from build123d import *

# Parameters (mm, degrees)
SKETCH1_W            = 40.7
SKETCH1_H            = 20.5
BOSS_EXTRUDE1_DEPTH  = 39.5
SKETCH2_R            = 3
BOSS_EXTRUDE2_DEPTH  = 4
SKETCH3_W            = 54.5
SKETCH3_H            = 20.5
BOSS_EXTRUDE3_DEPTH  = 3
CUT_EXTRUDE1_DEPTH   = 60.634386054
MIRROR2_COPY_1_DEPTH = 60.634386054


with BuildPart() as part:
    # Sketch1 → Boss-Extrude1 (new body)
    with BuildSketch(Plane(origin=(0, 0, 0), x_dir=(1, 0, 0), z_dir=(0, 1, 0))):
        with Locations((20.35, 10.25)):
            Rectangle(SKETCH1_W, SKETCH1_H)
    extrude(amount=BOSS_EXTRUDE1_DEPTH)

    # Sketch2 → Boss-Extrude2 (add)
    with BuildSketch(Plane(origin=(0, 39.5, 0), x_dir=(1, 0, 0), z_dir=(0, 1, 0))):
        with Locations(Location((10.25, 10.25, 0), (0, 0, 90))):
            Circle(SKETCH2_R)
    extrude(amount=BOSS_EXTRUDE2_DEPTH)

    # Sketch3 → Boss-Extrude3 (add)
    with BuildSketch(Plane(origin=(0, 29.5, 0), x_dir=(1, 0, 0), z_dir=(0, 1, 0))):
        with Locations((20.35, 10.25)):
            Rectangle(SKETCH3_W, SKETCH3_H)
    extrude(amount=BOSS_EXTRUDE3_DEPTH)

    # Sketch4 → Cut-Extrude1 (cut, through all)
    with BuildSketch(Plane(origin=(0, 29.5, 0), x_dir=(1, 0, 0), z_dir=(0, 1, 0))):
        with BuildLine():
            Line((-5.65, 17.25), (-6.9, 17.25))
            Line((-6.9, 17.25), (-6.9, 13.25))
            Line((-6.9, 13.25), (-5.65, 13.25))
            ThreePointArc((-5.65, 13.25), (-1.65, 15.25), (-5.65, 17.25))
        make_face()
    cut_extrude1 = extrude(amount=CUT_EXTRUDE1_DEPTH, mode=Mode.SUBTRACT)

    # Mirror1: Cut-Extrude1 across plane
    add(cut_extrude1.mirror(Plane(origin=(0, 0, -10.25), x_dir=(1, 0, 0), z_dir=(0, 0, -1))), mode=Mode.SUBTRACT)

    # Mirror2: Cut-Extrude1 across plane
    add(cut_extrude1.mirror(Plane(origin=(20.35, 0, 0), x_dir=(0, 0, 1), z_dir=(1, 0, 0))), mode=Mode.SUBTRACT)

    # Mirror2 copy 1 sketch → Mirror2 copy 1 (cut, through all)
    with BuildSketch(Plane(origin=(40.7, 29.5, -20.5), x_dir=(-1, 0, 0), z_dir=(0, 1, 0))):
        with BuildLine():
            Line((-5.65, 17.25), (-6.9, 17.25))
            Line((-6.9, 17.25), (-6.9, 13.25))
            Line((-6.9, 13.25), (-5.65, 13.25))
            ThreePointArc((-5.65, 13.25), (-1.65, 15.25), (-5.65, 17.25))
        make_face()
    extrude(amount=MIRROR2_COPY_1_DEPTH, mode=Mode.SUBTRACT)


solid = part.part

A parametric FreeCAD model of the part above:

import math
import FreeCAD as App
import Part
import Sketcher
from FreeCAD import Vector
Q = App.Units.Quantity


def add_polygon(sketch, points):
    """Adds a closed chain of lines whose ends are joined by coincident constraints."""
    first, n = sketch.GeometryCount, len(points)
    for a, b in zip(points, points[1:] + points[:1]):
        sketch.addGeometry(Part.LineSegment(App.Vector(*a, 0), App.Vector(*b, 0)), False)
    for i in range(n):
        sketch.addConstraint(Sketcher.Constraint("Coincident", first + i, 2, first + (i + 1) % n, 1))

doc = App.newDocument("Part")
params = doc.addObject("Spreadsheet::Sheet", "Params")
for row, (alias, value) in enumerate([
    ("sketch1_width", "40.7 mm"),
    ("sketch1_height", "20.5 mm"),
    ("pad1_length", "39.5 mm"),
    ("sketch2_diameter", "6 mm"),
    ("pad2_length", "4 mm"),
    ("sketch3_width", "54.5 mm"),
    ("sketch3_height", "20.5 mm"),
    ("pad3_length", "3 mm"),
    ("sketch4_radius", "2.5 mm"),
    ("sketch4_height", "4 mm"),
    ("sketch4_width", "1.25 mm"),
    ("sketch5_radius", "2.5 mm"),
    ("sketch5_height", "4 mm"),
    ("sketch5_width", "1.25 mm"),
], start=1):
    params.set(f"A{row}", alias)
    params.set(f"B{row}", "=" + value)
    params.setAlias(f"B{row}", alias)

body = doc.addObject("PartDesign::Body", "Body")

# Sketch on XZ plane
sketch1 = body.newObject("Sketcher::SketchObject", "Sketch")
sketch1.AttachmentSupport = (doc.getObject("XZ_Plane"), [""])
sketch1.MapMode = "FlatFace"
add_polygon(sketch1, [(0, -20), (0, 0), (41, 0), (41, -20)])  # lines 0-3
sketch1.addConstraint([
    Sketcher.Constraint("Vertical", 0),
    Sketcher.Constraint("Horizontal", 1),
    Sketcher.Constraint("Vertical", 2),
    Sketcher.Constraint("Horizontal", 3),
    Sketcher.Constraint("Coincident", 0, 2, -1, 1),
    Sketcher.Constraint("DistanceX", 1, 1, 1, 2, Q("40.7 mm")),
    Sketcher.Constraint("DistanceY", 0, 1, 0, 2, Q("20.5 mm")),
])
sketch1.setExpression("Constraints[9]", "Params.sketch1_width")
sketch1.setExpression("Constraints[10]", "Params.sketch1_height")
pad1 = body.newObject("PartDesign::Pad", "Pad")
pad1.Profile = sketch1
pad1.setExpression("Length", "Params.pad1_length")
pad1.Reversed = True

# Sketch on XZ plane
sketch2 = body.newObject("Sketcher::SketchObject", "Sketch001")
sketch2.AttachmentSupport = (doc.getObject("XZ_Plane"), [""])
sketch2.MapMode = "FlatFace"
sketch2.AttachmentOffset = App.Placement(Vector(0, 0, -39.5), App.Rotation())
sketch2.addGeometry(Part.Circle(Vector(10.2, -10.2, 0), Vector(0, 0, 1), 3), False)
sketch2.addConstraint([
    Sketcher.Constraint("Diameter", 0, Q("6 mm")),
    Sketcher.Constraint("DistanceX", -1, 1, 0, 3, Q("10.25 mm")),
    Sketcher.Constraint("DistanceY", 0, 3, -1, 1, Q("10.25 mm")),
])
sketch2.setExpression("Constraints[0]", "Params.sketch2_diameter")
pad2 = body.newObject("PartDesign::Pad", "Pad001")
pad2.Profile = sketch2
pad2.setExpression("Length", "Params.pad2_length")
pad2.Reversed = True

# Sketch on XZ plane
sketch3 = body.newObject("Sketcher::SketchObject", "Sketch002")
sketch3.AttachmentSupport = (doc.getObject("XZ_Plane"), [""])
sketch3.MapMode = "FlatFace"
sketch3.AttachmentOffset = App.Placement(Vector(0, 0, -29.5), App.Rotation())
add_polygon(sketch3, [(-7, -20), (-7, 0), (48, 0), (48, -20)])  # lines 0-3
sketch3.addConstraint([
    Sketcher.Constraint("Vertical", 0),
    Sketcher.Constraint("Horizontal", 1),
    Sketcher.Constraint("Vertical", 2),
    Sketcher.Constraint("Horizontal", 3),
    Sketcher.Constraint("PointOnObject", 0, 2, -1),
    Sketcher.Constraint("DistanceX", 1, 1, 1, 2, Q("54.5 mm")),
    Sketcher.Constraint("DistanceY", 0, 1, 0, 2, Q("20.5 mm")),
    Sketcher.Constraint("DistanceX", 0, 2, -1, 1, Q("6.9 mm")),
])
sketch3.setExpression("Constraints[9]", "Params.sketch3_width")
sketch3.setExpression("Constraints[10]", "Params.sketch3_height")
pad3 = body.newObject("PartDesign::Pad", "Pad002")
pad3.Profile = sketch3
pad3.setExpression("Length", "Params.pad3_length")
pad3.Reversed = True

# Sketch on XZ plane
sketch4 = body.newObject("Sketcher::SketchObject", "Sketch003")
sketch4.AttachmentSupport = (doc.getObject("XZ_Plane"), [""])
sketch4.MapMode = "FlatFace"
sketch4.AttachmentOffset = App.Placement(Vector(0, 0, -29.5), App.Rotation())
sketch4.addGeometry([
    Part.LineSegment(Vector(-5.7, -17.2, 0), Vector(-6.9, -17.2, 0)),
    Part.LineSegment(Vector(-6.9, -17.2, 0), Vector(-6.9, -13.2, 0)),
    Part.LineSegment(Vector(-6.9, -13.2, 0), Vector(-5.7, -13.2, 0)),
    Part.ArcOfCircle(Part.Circle(Vector(-4.2, -15.2, 0), Vector(0, 0, 1), 2.5), math.radians(-127), math.radians(127)),
], False)
sketch4.addConstraint([
    Sketcher.Constraint("Coincident", 0, 2, 1, 1),
    Sketcher.Constraint("Coincident", 1, 2, 2, 1),
    Sketcher.Constraint("Coincident", 2, 2, 3, 2),
    Sketcher.Constraint("Coincident", 3, 1, 0, 1),
    Sketcher.Constraint("Horizontal", 0),
    Sketcher.Constraint("Vertical", 1),
    Sketcher.Constraint("Horizontal", 2),
    Sketcher.Constraint("Vertical", 2, 2, 3, 1),
    Sketcher.Constraint("Radius", 3, Q("2.5 mm")),
    Sketcher.Constraint("DistanceY", 1, 1, 1, 2, Q("4 mm")),
    Sketcher.Constraint("DistanceX", 0, 2, 0, 1, Q("1.25 mm")),
    Sketcher.Constraint("DistanceX", 0, 2, -1, 1, Q("6.9 mm")),
    Sketcher.Constraint("DistanceY", 3, 3, -1, 1, Q("15.25 mm")),
])
sketch4.setExpression("Constraints[8]", "Params.sketch4_radius")
sketch4.setExpression("Constraints[9]", "Params.sketch4_height")
sketch4.setExpression("Constraints[10]", "Params.sketch4_width")
pocket1 = body.newObject("PartDesign::Pocket", "Pocket")
pocket1.Profile = sketch4
pocket1.Type = "ThroughAll"
doc.recompute()

datumplane = body.newObject("PartDesign::Plane", "DatumPlane")
datumplane.AttachmentSupport = (doc.getObject("XY_Plane"), [""])
datumplane.MapMode = "FlatFace"
datumplane.AttachmentOffset = App.Placement(Vector(0, 0, -10.25), App.Rotation())
mirrored = body.newObject("PartDesign::Mirrored", "Mirrored")
mirrored.Originals = [pocket1]
mirrored.MirrorPlane = (datumplane, [""])
body.Tip = mirrored
doc.recompute()

datumplane2 = body.newObject("PartDesign::Plane", "DatumPlane001")
datumplane2.AttachmentSupport = (doc.getObject("YZ_Plane"), [""])
datumplane2.MapMode = "FlatFace"
datumplane2.AttachmentOffset = App.Placement(Vector(0, 0, 20.35), App.Rotation())
mirrored2 = body.newObject("PartDesign::Mirrored", "Mirrored001")
mirrored2.Originals = [pocket1]
mirrored2.MirrorPlane = (datumplane2, [""])
body.Tip = mirrored2

# Sketch on XZ plane
sketch5 = body.newObject("Sketcher::SketchObject", "Sketch004")
sketch5.AttachmentSupport = (doc.getObject("XZ_Plane"), [""])
sketch5.MapMode = "FlatFace"
sketch5.AttachmentOffset = App.Placement(Vector(0, 0, -29.5), App.Rotation())
sketch5.addGeometry([
    Part.LineSegment(Vector(46.4, -3.2, 0), Vector(47.6, -3.2, 0)),
    Part.LineSegment(Vector(47.6, -3.2, 0), Vector(47.6, -7.2, 0)),
    Part.LineSegment(Vector(47.6, -7.2, 0), Vector(46.4, -7.2, 0)),
    Part.ArcOfCircle(Part.Circle(Vector(44.9, -5.2, 0), Vector(0, 0, 1), 2.5), math.radians(53), math.radians(307)),
], False)
sketch5.addConstraint([
    Sketcher.Constraint("Coincident", 0, 2, 1, 1),
    Sketcher.Constraint("Coincident", 1, 2, 2, 1),
    Sketcher.Constraint("Coincident", 2, 2, 3, 2),
    Sketcher.Constraint("Coincident", 3, 1, 0, 1),
    Sketcher.Constraint("Horizontal", 0),
    Sketcher.Constraint("Vertical", 1),
    Sketcher.Constraint("Horizontal", 2),
    Sketcher.Constraint("Vertical", 2, 2, 3, 1),
    Sketcher.Constraint("Radius", 3, Q("2.5 mm")),
    Sketcher.Constraint("DistanceY", 1, 2, 1, 1, Q("4 mm")),
    Sketcher.Constraint("DistanceX", 0, 1, 0, 2, Q("1.25 mm")),
    Sketcher.Constraint("DistanceX", -1, 1, 0, 2, Q("47.6 mm")),
    Sketcher.Constraint("DistanceY", 3, 3, -1, 1, Q("5.25 mm")),
])
sketch5.setExpression("Constraints[8]", "Params.sketch5_radius")
sketch5.setExpression("Constraints[9]", "Params.sketch5_height")
sketch5.setExpression("Constraints[10]", "Params.sketch5_width")
pocket2 = body.newObject("PartDesign::Pocket", "Pocket001")
pocket2.Profile = sketch5
pocket2.Type = "ThroughAll"

doc.recompute()
